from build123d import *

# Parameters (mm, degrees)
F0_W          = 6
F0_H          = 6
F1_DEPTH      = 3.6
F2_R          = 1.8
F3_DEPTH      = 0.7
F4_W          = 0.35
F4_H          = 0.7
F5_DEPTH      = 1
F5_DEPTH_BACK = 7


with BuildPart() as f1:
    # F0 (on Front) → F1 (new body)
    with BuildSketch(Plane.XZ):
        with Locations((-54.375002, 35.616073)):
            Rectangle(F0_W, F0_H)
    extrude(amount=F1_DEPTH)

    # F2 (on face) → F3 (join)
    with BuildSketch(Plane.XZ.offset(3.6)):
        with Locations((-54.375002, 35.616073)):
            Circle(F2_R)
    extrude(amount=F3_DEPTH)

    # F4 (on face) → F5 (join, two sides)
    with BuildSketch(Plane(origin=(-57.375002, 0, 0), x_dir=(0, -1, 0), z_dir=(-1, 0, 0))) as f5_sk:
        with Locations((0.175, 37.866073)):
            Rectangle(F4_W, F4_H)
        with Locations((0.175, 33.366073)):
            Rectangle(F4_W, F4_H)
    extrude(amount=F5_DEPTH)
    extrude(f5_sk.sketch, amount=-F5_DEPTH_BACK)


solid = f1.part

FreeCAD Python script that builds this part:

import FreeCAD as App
import Part
import Sketcher
Q = App.Units.Quantity

doc = App.newDocument("Part")
body = doc.addObject("PartDesign::Body", "Body")

# Sketch on XZ plane
sketch1 = doc.addObject("Sketcher::SketchObject", "Sketch")
body.addObject(sketch1)
sketch1.AttachmentSupport = (doc.XZ_Plane, [""])
sketch1.MapMode = "FlatFace"
sketch1.addGeometry(Part.LineSegment(App.Vector(-57, 39, 0), App.Vector(-57, 33, 0)), False)
sketch1.addGeometry(Part.LineSegment(App.Vector(-57, 33, 0), App.Vector(-51, 33, 0)), False)
sketch1.addGeometry(Part.LineSegment(App.Vector(-51, 33, 0), App.Vector(-51, 39, 0)), False)
sketch1.addGeometry(Part.LineSegment(App.Vector(-51, 39, 0), App.Vector(-57, 39, 0)), False)
sketch1.addConstraint(Sketcher.Constraint("Coincident", 0, 2, 1, 1))
sketch1.addConstraint(Sketcher.Constraint("Coincident", 1, 2, 2, 1))
sketch1.addConstraint(Sketcher.Constraint("Coincident", 2, 2, 3, 1))
sketch1.addConstraint(Sketcher.Constraint("Coincident", 3, 2, 0, 1))
sketch1.addConstraint(Sketcher.Constraint("Vertical", 0))
sketch1.addConstraint(Sketcher.Constraint("Horizontal", 1))
sketch1.addConstraint(Sketcher.Constraint("Vertical", 2))
sketch1.addConstraint(Sketcher.Constraint("Horizontal", 3))
sketch1.addConstraint(Sketcher.Constraint("Equal", 3, 0))
sketch1.addConstraint(Sketcher.Constraint("DistanceX", 1, 1, 1, 2, Q("6 mm")))
sketch1.addConstraint(Sketcher.Constraint("DistanceX", 0, 2, -1, 1, Q("57.375002 mm")))
sketch1.addConstraint(Sketcher.Constraint("DistanceY", -1, 1, 0, 2, Q("32.616073 mm")))
pad1 = doc.addObject("PartDesign::Pad", "Pad")
body.addObject(pad1)
pad1.Profile = sketch1
pad1.Length = 3.6

# Sketch on XZ plane
sketch2 = doc.addObject("Sketcher::SketchObject", "Sketch001")
body.addObject(sketch2)
sketch2.AttachmentSupport = (doc.XZ_Plane, [""])
sketch2.MapMode = "FlatFace"
sketch2.AttachmentOffset = App.Placement(App.Vector(0, 0, 3.6), App.Rotation())
sketch2.addGeometry(Part.Circle(App.Vector(-54.4, 35.6, 0), App.Vector(0, 0, 1), 1.8), False)
sketch2.addConstraint(Sketcher.Constraint("Diameter", 0, Q("3.6 mm")))
sketch2.addConstraint(Sketcher.Constraint("DistanceX", 0, 3, -1, 1, Q("54.375002 mm")))
sketch2.addConstraint(Sketcher.Constraint("DistanceY", -1, 1, 0, 3, Q("35.616073 mm")))
pad2 = doc.addObject("PartDesign::Pad", "Pad001")
body.addObject(pad2)
pad2.Profile = sketch2
pad2.Length = 0.7

# Sketch on YZ plane
sketch3 = doc.addObject("Sketcher::SketchObject", "Sketch002")
body.addObject(sketch3)
sketch3.AttachmentSupport = (doc.YZ_Plane, [""])
sketch3.MapMode = "FlatFace"
sketch3.AttachmentOffset = App.Placement(App.Vector(0, 0, -57.375002), App.Rotation())
sketch3.addGeometry(Part.LineSegment(App.Vector(0, 38.22, 0), App.Vector(0, 37.52, 0)), False)
sketch3.addGeometry(Part.LineSegment(App.Vector(0, 37.52, 0), App.Vector(-0.35, 37.52, 0)), False)
sketch3.addGeometry(Part.LineSegment(App.Vector(-0.35, 37.52, 0), App.Vector(-0.35, 38.22, 0)), False)
sketch3.addGeometry(Part.LineSegment(App.Vector(-0.35, 38.22, 0), App.Vector(0, 38.22, 0)), False)
sketch3.addGeometry(Part.LineSegment(App.Vector(0, 33.72, 0), App.Vector(0, 33.02, 0)), False)
sketch3.addGeometry(Part.LineSegment(App.Vector(0, 33.02, 0), App.Vector(-0.35, 33.02, 0)), False)
sketch3.addGeometry(Part.LineSegment(App.Vector(-0.35, 33.02, 0), App.Vector(-0.35, 33.72, 0)), False)
sketch3.addGeometry(Part.LineSegment(App.Vector(-0.35, 33.72, 0), App.Vector(0, 33.72, 0)), False)
sketch3.addConstraint(Sketcher.Constraint("Coincident", 0, 2, 1, 1))
sketch3.addConstraint(Sketcher.Constraint("Coincident", 1, 2, 2, 1))
sketch3.addConstraint(Sketcher.Constraint("Coincident", 2, 2, 3, 1))
sketch3.addConstraint(Sketcher.Constraint("Coincident", 3, 2, 0, 1))
sketch3.addConstraint(Sketcher.Constraint("Coincident", 4, 2, 5, 1))
sketch3.addConstraint(Sketcher.Constraint("Coincident", 5, 2, 6, 1))
sketch3.addConstraint(Sketcher.Constraint("Coincident", 6, 2, 7, 1))
sketch3.addConstraint(Sketcher.Constraint("Coincident", 7, 2, 4, 1))
sketch3.addConstraint(Sketcher.Constraint("Vertical", 0))
sketch3.addConstraint(Sketcher.Constraint("Horizontal", 1))
sketch3.addConstraint(Sketcher.Constraint("Vertical", 2))
sketch3.addConstraint(Sketcher.Constraint("Horizontal", 3))
sketch3.addConstraint(Sketcher.Constraint("Vertical", 4))
sketch3.addConstraint(Sketcher.Constraint("Horizontal", 5))
sketch3.addConstraint(Sketcher.Constraint("Vertical", 6))
sketch3.addConstraint(Sketcher.Constraint("Horizontal", 7))
sketch3.addConstraint(Sketcher.Constraint("PointOnObject", 0, 2, -2))
sketch3.addConstraint(Sketcher.Constraint("PointOnObject", 4, 2, -2))
sketch3.addConstraint(Sketcher.Constraint("Vertical", 2, 2, 5, 2))
sketch3.addConstraint(Sketcher.Constraint("Equal", 2, 4))
sketch3.addConstraint(Sketcher.Constraint("DistanceY", 0, 2, 0, 1, Q("0.7 mm")))
sketch3.addConstraint(Sketcher.Constraint("DistanceX", 1, 2, 1, 1, Q("0.35 mm")))
sketch3.addConstraint(Sketcher.Constraint("DistanceY", 4, 2, 0, 2, Q("4.5 mm")))
sketch3.addConstraint(Sketcher.Constraint("DistanceY", -1, 1, 0, 2, Q("37.516073 mm")))
pad3 = doc.addObject("PartDesign::Pad", "Pad002")
body.addObject(pad3)
pad3.Profile = sketch3
pad3.Type = "TwoLengths"
pad3.Length = 1
pad3.Length2 = 7
pad3.Reversed = True

doc.recompute()
